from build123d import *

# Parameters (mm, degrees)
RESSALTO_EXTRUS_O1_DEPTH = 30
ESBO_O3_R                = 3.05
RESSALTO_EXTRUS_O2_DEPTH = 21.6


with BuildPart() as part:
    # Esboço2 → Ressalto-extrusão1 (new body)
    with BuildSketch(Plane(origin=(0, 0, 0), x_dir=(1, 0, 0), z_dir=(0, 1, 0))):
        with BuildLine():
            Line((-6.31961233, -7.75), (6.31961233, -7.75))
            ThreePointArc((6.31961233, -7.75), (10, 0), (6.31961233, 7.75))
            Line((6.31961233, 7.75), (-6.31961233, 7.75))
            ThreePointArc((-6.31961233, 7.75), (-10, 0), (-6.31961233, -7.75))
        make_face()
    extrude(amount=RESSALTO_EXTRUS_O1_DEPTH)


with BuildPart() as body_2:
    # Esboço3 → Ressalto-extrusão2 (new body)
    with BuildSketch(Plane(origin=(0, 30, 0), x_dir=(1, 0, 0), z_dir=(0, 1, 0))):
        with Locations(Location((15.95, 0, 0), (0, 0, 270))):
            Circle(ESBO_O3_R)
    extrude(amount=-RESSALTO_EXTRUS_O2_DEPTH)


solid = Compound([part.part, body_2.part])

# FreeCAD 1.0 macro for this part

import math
import FreeCAD as App
import Part
import Sketcher
Q = App.Units.Quantity

doc = App.newDocument("Part")
body = doc.addObject("PartDesign::Body", "Body")

sketch1 = body.newObject("Sketcher::SketchObject", "Sketch")
sketch1.AttachmentSupport = (doc.getObject("XZ_Plane"), [""])
sketch1.MapMode = "FlatFace"
sketch1.addGeometry(Part.LineSegment(App.Vector(-6.319612, 7.75, 0), App.Vector(6.319612, 7.75, 0)), False)
sketch1.addGeometry(Part.ArcOfCircle(Part.Circle(App.Vector(0, 0, 0), App.Vector(0, 0, 1), 10), math.radians(-50.805033), math.radians(50.805033)), False)
sketch1.addGeometry(Part.LineSegment(App.Vector(6.319612, -7.75, 0), App.Vector(-6.319612, -7.75, 0)), False)
sketch1.addGeometry(Part.ArcOfCircle(Part.Circle(App.Vector(0, 0, 0), App.Vector(0, 0, 1), 10), math.radians(129.194967), math.radians(230.805033)), False)
sketch1.addConstraint(Sketcher.Constraint("Coincident", 0, 2, 1, 2))
sketch1.addConstraint(Sketcher.Constraint("Coincident", 1, 1, 2, 1))
sketch1.addConstraint(Sketcher.Constraint("Coincident", 2, 2, 3, 2))
sketch1.addConstraint(Sketcher.Constraint("Coincident", 3, 1, 0, 1))
sketch1.addConstraint(Sketcher.Constraint("Horizontal", 0))
sketch1.addConstraint(Sketcher.Constraint("Horizontal", 2))
sketch1.addConstraint(Sketcher.Constraint("Coincident", 1, 3, -1, 1))
sketch1.addConstraint(Sketcher.Constraint("Coincident", 3, 3, -1, 1))
sketch1.addConstraint(Sketcher.Constraint("Equal", 1, 3))
sketch1.addConstraint(Sketcher.Constraint("Vertical", 0, 2, 1, 1))
sketch1.addConstraint(Sketcher.Constraint("Radius", 1, Q("10 mm")))
sketch1.addConstraint(Sketcher.Constraint("DistanceY", 1, 1, 0, 2, Q("15.5 mm")))
pad1 = body.newObject("PartDesign::Pad", "Pad")
pad1.Profile = sketch1
pad1.Length = 30
pad1.Reversed = True
body2 = doc.addObject("PartDesign::Body", "Body001")

sketch2 = body2.newObject("Sketcher::SketchObject", "Sketch001")
sketch2.AttachmentSupport = (doc.getObject("XZ_Plane001"), [""])
sketch2.MapMode = "FlatFace"
sketch2.AttachmentOffset = App.Placement(App.Vector(0, 0, -30), App.Rotation())
sketch2.addGeometry(Part.Circle(App.Vector(15.95, 0, 0), App.Vector(0, 0, 1), 3.05), False)
sketch2.addConstraint(Sketcher.Constraint("PointOnObject", 0, 3, -1))
sketch2.addConstraint(Sketcher.Constraint("Diameter", 0, Q("6.1 mm")))
sketch2.addConstraint(Sketcher.Constraint("DistanceX", -1, 1, 0, 3, Q("15.95 mm")))
pad2 = body2.newObject("PartDesign::Pad", "Pad001")
pad2.Profile = sketch2
pad2.Length = 21.6

doc.recompute()
